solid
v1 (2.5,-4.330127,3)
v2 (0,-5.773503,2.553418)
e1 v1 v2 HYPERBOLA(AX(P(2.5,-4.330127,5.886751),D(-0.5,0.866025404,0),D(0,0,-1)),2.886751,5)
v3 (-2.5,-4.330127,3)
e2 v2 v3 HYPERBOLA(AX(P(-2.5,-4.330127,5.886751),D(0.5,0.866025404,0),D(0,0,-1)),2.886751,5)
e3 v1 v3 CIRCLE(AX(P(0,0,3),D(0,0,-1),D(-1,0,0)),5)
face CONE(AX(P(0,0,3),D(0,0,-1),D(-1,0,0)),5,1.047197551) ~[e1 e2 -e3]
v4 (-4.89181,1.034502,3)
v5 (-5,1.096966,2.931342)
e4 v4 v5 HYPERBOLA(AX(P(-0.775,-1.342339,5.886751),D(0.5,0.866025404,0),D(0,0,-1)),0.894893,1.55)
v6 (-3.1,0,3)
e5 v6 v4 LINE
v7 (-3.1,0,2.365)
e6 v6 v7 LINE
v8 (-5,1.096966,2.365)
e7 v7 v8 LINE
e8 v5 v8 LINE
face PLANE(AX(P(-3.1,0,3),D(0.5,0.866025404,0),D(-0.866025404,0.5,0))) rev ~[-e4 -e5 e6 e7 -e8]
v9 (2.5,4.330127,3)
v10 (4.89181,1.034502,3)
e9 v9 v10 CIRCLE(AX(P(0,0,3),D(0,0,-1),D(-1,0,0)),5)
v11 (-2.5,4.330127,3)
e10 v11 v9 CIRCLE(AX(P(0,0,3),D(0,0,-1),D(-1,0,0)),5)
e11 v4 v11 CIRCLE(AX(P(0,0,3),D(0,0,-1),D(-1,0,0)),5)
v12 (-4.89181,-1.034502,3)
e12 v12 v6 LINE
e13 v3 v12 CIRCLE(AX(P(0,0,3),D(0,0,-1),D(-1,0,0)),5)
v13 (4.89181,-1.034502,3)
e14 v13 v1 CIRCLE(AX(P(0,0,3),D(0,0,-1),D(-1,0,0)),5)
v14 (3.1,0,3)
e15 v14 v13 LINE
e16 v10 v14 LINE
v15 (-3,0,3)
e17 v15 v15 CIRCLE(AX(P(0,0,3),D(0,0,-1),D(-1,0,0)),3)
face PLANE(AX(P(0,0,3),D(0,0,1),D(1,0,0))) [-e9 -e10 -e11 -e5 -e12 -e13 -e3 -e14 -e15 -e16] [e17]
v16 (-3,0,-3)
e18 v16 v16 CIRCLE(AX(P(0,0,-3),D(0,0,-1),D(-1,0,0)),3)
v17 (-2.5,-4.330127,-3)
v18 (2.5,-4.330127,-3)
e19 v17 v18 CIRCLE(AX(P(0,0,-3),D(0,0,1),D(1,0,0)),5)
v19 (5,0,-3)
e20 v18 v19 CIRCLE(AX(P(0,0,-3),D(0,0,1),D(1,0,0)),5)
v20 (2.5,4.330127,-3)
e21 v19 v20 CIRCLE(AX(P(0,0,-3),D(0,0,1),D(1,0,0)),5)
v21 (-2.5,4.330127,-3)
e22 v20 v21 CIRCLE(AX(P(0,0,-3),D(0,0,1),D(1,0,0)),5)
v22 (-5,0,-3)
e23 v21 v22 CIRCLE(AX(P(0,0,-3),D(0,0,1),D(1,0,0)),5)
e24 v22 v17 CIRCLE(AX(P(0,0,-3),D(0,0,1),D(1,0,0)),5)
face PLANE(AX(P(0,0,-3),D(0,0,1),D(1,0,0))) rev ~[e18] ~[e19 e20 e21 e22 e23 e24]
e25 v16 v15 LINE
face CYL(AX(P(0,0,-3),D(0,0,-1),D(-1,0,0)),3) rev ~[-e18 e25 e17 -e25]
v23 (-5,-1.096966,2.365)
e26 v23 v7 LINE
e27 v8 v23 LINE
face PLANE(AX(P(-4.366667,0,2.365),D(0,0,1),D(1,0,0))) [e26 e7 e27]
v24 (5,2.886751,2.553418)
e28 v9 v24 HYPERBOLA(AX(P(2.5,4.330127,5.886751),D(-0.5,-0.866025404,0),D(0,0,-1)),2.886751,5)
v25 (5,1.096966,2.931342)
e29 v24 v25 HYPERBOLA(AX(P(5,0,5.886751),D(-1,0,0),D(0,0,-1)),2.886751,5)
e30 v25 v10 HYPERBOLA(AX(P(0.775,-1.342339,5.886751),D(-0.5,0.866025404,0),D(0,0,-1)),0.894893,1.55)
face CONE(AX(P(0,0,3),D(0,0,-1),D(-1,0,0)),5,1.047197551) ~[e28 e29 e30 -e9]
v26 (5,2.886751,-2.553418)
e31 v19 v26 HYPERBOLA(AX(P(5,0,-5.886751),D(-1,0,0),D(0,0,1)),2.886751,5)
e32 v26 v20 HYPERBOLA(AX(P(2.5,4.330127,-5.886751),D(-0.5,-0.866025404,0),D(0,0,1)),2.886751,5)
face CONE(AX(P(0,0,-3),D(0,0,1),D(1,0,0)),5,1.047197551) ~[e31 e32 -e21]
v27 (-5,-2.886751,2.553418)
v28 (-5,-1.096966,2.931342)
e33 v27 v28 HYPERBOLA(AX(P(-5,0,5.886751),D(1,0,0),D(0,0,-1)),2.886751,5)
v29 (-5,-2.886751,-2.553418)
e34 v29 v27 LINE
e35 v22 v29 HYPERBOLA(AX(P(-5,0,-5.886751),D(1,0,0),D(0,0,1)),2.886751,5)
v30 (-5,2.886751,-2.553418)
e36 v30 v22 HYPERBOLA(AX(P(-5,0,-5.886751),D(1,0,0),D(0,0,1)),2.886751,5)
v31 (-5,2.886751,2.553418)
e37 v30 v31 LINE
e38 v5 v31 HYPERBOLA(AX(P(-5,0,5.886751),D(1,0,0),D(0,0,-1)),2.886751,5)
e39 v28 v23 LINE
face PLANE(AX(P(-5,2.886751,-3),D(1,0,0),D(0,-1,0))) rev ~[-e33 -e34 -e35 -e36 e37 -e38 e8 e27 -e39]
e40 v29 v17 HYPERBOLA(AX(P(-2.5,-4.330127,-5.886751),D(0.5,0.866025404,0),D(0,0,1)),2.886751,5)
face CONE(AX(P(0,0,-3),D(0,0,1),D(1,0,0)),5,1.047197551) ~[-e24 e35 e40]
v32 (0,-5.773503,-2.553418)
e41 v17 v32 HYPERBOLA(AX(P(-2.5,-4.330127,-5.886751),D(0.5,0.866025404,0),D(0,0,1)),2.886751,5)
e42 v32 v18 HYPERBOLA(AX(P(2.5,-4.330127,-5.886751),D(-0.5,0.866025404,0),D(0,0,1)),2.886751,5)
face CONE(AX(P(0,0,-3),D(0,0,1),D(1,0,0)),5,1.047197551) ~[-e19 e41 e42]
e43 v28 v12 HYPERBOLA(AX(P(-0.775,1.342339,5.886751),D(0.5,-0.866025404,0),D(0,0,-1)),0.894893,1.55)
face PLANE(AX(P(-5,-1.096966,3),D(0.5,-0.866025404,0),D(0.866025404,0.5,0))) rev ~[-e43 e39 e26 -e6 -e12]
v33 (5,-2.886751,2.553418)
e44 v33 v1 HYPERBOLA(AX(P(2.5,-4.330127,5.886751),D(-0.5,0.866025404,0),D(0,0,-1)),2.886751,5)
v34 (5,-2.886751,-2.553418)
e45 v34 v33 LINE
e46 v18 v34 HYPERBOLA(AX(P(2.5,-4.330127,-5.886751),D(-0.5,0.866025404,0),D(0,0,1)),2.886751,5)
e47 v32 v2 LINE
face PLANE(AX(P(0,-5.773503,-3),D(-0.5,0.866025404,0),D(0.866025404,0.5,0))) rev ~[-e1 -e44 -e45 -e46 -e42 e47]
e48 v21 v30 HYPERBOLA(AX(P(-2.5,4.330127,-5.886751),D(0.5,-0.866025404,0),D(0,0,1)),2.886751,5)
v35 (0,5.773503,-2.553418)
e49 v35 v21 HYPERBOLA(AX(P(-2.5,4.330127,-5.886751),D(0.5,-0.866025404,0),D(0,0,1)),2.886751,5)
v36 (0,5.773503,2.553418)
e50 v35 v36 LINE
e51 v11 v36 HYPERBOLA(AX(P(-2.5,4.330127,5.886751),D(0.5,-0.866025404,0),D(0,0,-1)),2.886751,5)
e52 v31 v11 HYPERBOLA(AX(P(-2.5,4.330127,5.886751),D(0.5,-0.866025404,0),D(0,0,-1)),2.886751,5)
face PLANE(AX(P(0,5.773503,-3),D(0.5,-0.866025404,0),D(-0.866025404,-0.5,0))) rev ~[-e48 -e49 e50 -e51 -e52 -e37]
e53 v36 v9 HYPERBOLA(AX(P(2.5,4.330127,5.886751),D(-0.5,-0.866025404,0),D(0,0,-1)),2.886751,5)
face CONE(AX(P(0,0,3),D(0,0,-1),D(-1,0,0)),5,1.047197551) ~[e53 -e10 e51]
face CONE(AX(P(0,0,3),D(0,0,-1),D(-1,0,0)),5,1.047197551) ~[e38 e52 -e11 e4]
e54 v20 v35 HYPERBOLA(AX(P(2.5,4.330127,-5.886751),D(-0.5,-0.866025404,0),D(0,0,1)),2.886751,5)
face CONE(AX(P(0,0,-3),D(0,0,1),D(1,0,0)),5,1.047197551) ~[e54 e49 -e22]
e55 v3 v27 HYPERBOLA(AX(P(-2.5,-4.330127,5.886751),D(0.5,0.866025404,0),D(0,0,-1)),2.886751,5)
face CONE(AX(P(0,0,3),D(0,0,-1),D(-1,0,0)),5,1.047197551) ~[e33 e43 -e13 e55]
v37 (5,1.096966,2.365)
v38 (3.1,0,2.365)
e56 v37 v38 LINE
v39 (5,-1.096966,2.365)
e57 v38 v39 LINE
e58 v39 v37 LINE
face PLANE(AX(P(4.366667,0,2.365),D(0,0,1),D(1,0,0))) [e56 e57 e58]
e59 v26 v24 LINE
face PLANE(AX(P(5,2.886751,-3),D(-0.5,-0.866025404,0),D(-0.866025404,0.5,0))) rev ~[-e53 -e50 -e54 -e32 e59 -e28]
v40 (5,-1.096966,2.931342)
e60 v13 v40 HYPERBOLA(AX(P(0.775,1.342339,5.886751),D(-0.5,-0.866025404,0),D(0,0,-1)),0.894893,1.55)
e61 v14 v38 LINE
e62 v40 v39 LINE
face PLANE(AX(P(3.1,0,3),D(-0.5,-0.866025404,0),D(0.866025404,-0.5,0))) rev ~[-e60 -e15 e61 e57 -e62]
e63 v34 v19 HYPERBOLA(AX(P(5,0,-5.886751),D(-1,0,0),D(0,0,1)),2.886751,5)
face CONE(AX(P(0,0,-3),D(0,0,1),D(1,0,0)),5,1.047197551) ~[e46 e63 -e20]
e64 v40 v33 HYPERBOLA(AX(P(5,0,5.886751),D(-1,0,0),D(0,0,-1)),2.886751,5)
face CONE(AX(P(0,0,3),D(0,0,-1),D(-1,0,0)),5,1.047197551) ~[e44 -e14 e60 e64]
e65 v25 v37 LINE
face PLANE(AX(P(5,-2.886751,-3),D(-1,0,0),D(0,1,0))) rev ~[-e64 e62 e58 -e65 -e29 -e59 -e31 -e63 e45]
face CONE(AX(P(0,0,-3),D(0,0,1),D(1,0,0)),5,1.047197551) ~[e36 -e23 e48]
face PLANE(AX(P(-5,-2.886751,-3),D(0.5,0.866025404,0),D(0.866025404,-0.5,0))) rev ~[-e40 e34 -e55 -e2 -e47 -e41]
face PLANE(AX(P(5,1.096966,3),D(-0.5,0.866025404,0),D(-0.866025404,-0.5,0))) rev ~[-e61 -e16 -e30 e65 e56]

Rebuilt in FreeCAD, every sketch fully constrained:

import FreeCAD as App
import Part
import Sketcher

V = App.Vector
Q = App.Units.Quantity


def faces_at(feature, points):
    """Names of the faces that lie closest to the given points."""
    faces = feature.Shape.Faces
    near = lambda p: min(range(len(faces)), key=lambda i: faces[i].distToShape(Part.Vertex(*p))[0])
    return sorted({f"Face{near(p) + 1}" for p in points})


def add_polygon(sketch, points):
    """Adds a closed chain of lines whose ends are joined by coincident constraints."""
    first, n = sketch.GeometryCount, len(points)
    for a, b in zip(points, points[1:] + points[:1]):
        sketch.addGeometry(Part.LineSegment(App.Vector(*a, 0), App.Vector(*b, 0)), False)
    for i in range(n):
        sketch.addConstraint(Sketcher.Constraint("Coincident", first + i, 2, first + (i + 1) % n, 1))

doc = App.newDocument("Part")
params = doc.addObject("Spreadsheet::Sheet", "Params")
for row, (alias, value) in enumerate([
    ("pad1_length", "3 mm"),
    ("pad1_length2", "3 mm"),
    ("sketch2_diameter", "10 mm"),
    ("sketch2_height", "53.94 mm"),
    ("pad2_length", "10.712535 mm"),
    ("draft_angle", "60 deg"),
    ("sketch3_diameter", "10 mm"),
    ("sketch3_height", "53.94 mm"),
    ("pad3_length", "10.712535 mm"),
    ("draft2_angle", "60 deg"),
    ("sketch4_diameter", "6 mm"),
    ("pocket2_length", "0.635 mm"),
], start=1):
    params.set(f"A{row}", alias)
    params.set(f"B{row}", "=" + value)
    params.setAlias(f"B{row}", alias)

body = doc.addObject("PartDesign::Body", "Body")

# Sketch on XY plane
sketch1 = body.newObject("Sketcher::SketchObject", "Sketch")
sketch1.AttachmentSupport = (doc.getObject("XY_Plane"), [""])
sketch1.MapMode = "FlatFace"
add_polygon(sketch1, [(0, 6), (-5, 3), (-5, -3), (0, -6), (5, -3), (5, 3)])  # lines 0-5
sketch1.addConstraint(Sketcher.Constraint("Vertical", 1))
sketch1.addConstraint(Sketcher.Constraint("Vertical", 4))
sketch1.addConstraint(Sketcher.Constraint("Symmetric", 0, 2, 3, 2, -1, 1))
sketch1.addConstraint(Sketcher.Constraint("Symmetric", 2, 2, 5, 2, -1, 1))
sketch1.addConstraint(Sketcher.Constraint("PointOnObject", 2, 2, -2))
sketch1.addConstraint(Sketcher.Constraint("Parallel", 2, 5))
sketch1.addConstraint(Sketcher.Constraint("Horizontal", 1, 2, 3, 2))
sketch1.addConstraint(Sketcher.Constraint("Angle", 0, Q("-150 deg")))
sketch1.addConstraint(Sketcher.Constraint("DistanceX", 0, 2, -1, 1, 5.0))
sketch1.addConstraint(Sketcher.Constraint("DistanceY", 1, 2, 1, 1, 5.773503))
pad1 = body.newObject("PartDesign::Pad", "Pad")
pad1.Profile = sketch1
pad1.Type = "TwoLengths"
pad1.setExpression("Length", "Params.pad1_length")
pad1.setExpression("Length2", "Params.pad1_length2")
body2 = doc.addObject("PartDesign::Body", "Body001")

# Sketch on XY plane
sketch2 = body2.newObject("Sketcher::SketchObject", "Sketch001")
sketch2.AttachmentSupport = (doc.getObject("XY_Plane001"), [""])
sketch2.MapMode = "FlatFace"
sketch2.AttachmentOffset = App.Placement(V(0, 0, 3), App.Rotation())
add_polygon(sketch2, [(26, 27), (26, -27), (-26, -27), (-26, 27)])  # lines 0-3
sketch2.addGeometry(Part.Circle(V(0, 0, 0), V(0, 0, 1), 5), False)  # 4
sketch2.addConstraint(Sketcher.Constraint("Vertical", 0))
sketch2.addConstraint(Sketcher.Constraint("Horizontal", 1))
sketch2.addConstraint(Sketcher.Constraint("Vertical", 2))
sketch2.addConstraint(Sketcher.Constraint("Horizontal", 3))
sketch2.addConstraint(Sketcher.Constraint("Coincident", 4, 3, -1, 1))
sketch2.addConstraint(Sketcher.Constraint("Symmetric", 0, 2, 2, 2, -1, 1))
sketch2.addConstraint(Sketcher.Constraint("Diameter", 4, 10.0))
sketch2.addConstraint(Sketcher.Constraint("DistanceY", 0, 2, 0, 1, 53.94))
sketch2.addConstraint(Sketcher.Constraint("DistanceX", 1, 2, 1, 1, 52.392))
sketch2.setExpression("Constraints[10]", "Params.sketch2_diameter")
sketch2.setExpression("Constraints[11]", "Params.sketch2_height")
pad2 = body2.newObject("PartDesign::Pad", "Pad001")
pad2.Profile = sketch2
pad2.setExpression("Length", "Params.pad2_length")
pad2.Reversed = True
doc.recompute()

datumplane = body2.newObject("PartDesign::Plane", "DatumPlane")
datumplane.AttachmentSupport = (doc.getObject("XY_Plane001"), [""])
datumplane.MapMode = "FlatFace"
datumplane.AttachmentOffset = App.Placement(V(0, 0, 3), App.Rotation())
draft = body2.newObject("PartDesign::Draft", "Draft")
draft.Base = (pad2, faces_at(pad2, [
    (0, -26.97, -2.356),
    (-26.196, 0, -2.356),
    (0, 26.97, -2.356),
    (26.196, 0, -2.356),
    (5, 0, -2.356),
]))
draft.NeutralPlane = (datumplane, [""])
draft.setExpression("Angle", "Params.draft_angle")
draft.Reversed = True
doc.recompute()

boolean = body.newObject("PartDesign::Boolean", "Boolean")
boolean.Type = "Cut"
boolean.addObjects([body2])
body3 = doc.addObject("PartDesign::Body", "Body002")

# Sketch on XY plane
sketch3 = body3.newObject("Sketcher::SketchObject", "Sketch002")
sketch3.AttachmentSupport = (doc.getObject("XY_Plane002"), [""])
sketch3.MapMode = "FlatFace"
sketch3.AttachmentOffset = App.Placement(V(0, 0, -3), App.Rotation())
add_polygon(sketch3, [(-26, 27), (-26, -27), (26, -27), (26, 27)])  # lines 0-3
sketch3.addGeometry(Part.Circle(V(0, 0, 0), V(0, 0, 1), 5), False)  # 4
sketch3.addConstraint(Sketcher.Constraint("Vertical", 0))
sketch3.addConstraint(Sketcher.Constraint("Horizontal", 1))
sketch3.addConstraint(Sketcher.Constraint("Vertical", 2))
sketch3.addConstraint(Sketcher.Constraint("Horizontal", 3))
sketch3.addConstraint(Sketcher.Constraint("Coincident", 4, 3, -1, 1))
sketch3.addConstraint(Sketcher.Constraint("Symmetric", 0, 2, 2, 2, -1, 1))
sketch3.addConstraint(Sketcher.Constraint("Diameter", 4, 10.0))
sketch3.addConstraint(Sketcher.Constraint("DistanceY", 0, 2, 0, 1, 53.94))
sketch3.addConstraint(Sketcher.Constraint("DistanceX", 1, 1, 1, 2, 52.392))
sketch3.setExpression("Constraints[10]", "Params.sketch3_diameter")
sketch3.setExpression("Constraints[11]", "Params.sketch3_height")
pad3 = body3.newObject("PartDesign::Pad", "Pad002")
pad3.Profile = sketch3
pad3.setExpression("Length", "Params.pad3_length")
doc.recompute()

datumplane2 = body3.newObject("PartDesign::Plane", "DatumPlane001")
datumplane2.AttachmentSupport = (doc.getObject("XY_Plane002"), [""])
datumplane2.MapMode = "FlatFace"
datumplane2.AttachmentOffset = App.Placement(V(0, 0, -3), App.Rotation())
draft2 = body3.newObject("PartDesign::Draft", "Draft001")
draft2.Base = (pad3, faces_at(pad3, [
    (0, -26.97, 2.356),
    (26.196, 0, 2.356),
    (0, 26.97, 2.356),
    (-26.196, 0, 2.356),
    (-5, 0, 2.356),
]))
draft2.NeutralPlane = (datumplane2, [""])
draft2.setExpression("Angle", "Params.draft2_angle")
draft2.Reversed = False
doc.recompute()

boolean2 = body.newObject("PartDesign::Boolean", "Boolean001")
boolean2.Type = "Cut"
boolean2.addObjects([body3])

# Sketch on XY plane
sketch4 = body.newObject("Sketcher::SketchObject", "Sketch003")
sketch4.AttachmentSupport = (doc.getObject("XY_Plane"), [""])
sketch4.MapMode = "FlatFace"
sketch4.AttachmentOffset = App.Placement(V(0, 0, -3), App.Rotation())
sketch4.addGeometry(Part.Circle(V(0, 0, 0), V(0, 0, 1), 3), False)
sketch4.addConstraint(Sketcher.Constraint("Coincident", 0, 3, -1, 1))
sketch4.addConstraint(Sketcher.Constraint("Diameter", 0, 6.0))
sketch4.setExpression("Constraints[1]", "Params.sketch4_diameter")
pocket1 = body.newObject("PartDesign::Pocket", "Pocket")
pocket1.Profile = sketch4
pocket1.Type = "ThroughAll"
pocket1.Reversed = True

# Sketch on XY plane
sketch5 = body.newObject("Sketcher::SketchObject", "Sketch004")
sketch5.AttachmentSupport = (doc.getObject("XY_Plane"), [""])
sketch5.MapMode = "FlatFace"
sketch5.AttachmentOffset = App.Placement(V(0, 0, 3), App.Rotation())
add_polygon(sketch5, [(-3.1, 0), (-5, 1.1), (-5, -1.1)])  # lines 0-2
add_polygon(sketch5, [(3.1, 0), (5, -1.1), (5, 1.1)])  # lines 3-5
sketch5.addConstraint(Sketcher.Constraint("Vertical", 1))
sketch5.addConstraint(Sketcher.Constraint("Vertical", 4))
sketch5.addConstraint(Sketcher.Constraint("Symmetric", 0, 2, 3, 2, -1, 1))
sketch5.addConstraint(Sketcher.Constraint("Symmetric", 2, 2, 5, 2, -1, 1))
sketch5.addConstraint(Sketcher.Constraint("PointOnObject", 2, 2, -1))
sketch5.addConstraint(Sketcher.Constraint("Parallel", 2, 5))
sketch5.addConstraint(Sketcher.Constraint("Horizontal", 1, 2, 3, 2))
sketch5.addConstraint(Sketcher.Constraint("Angle", 0, Q("150 deg")))
sketch5.addConstraint(Sketcher.Constraint("DistanceX", 0, 2, -1, 1, 5.0))
sketch5.addConstraint(Sketcher.Constraint("DistanceX", 2, 2, -1, 1, 3.1))
pocket2 = body.newObject("PartDesign::Pocket", "Pocket001")
pocket2.Profile = sketch5
pocket2.setExpression("Length", "Params.pocket2_length")

doc.recompute()
